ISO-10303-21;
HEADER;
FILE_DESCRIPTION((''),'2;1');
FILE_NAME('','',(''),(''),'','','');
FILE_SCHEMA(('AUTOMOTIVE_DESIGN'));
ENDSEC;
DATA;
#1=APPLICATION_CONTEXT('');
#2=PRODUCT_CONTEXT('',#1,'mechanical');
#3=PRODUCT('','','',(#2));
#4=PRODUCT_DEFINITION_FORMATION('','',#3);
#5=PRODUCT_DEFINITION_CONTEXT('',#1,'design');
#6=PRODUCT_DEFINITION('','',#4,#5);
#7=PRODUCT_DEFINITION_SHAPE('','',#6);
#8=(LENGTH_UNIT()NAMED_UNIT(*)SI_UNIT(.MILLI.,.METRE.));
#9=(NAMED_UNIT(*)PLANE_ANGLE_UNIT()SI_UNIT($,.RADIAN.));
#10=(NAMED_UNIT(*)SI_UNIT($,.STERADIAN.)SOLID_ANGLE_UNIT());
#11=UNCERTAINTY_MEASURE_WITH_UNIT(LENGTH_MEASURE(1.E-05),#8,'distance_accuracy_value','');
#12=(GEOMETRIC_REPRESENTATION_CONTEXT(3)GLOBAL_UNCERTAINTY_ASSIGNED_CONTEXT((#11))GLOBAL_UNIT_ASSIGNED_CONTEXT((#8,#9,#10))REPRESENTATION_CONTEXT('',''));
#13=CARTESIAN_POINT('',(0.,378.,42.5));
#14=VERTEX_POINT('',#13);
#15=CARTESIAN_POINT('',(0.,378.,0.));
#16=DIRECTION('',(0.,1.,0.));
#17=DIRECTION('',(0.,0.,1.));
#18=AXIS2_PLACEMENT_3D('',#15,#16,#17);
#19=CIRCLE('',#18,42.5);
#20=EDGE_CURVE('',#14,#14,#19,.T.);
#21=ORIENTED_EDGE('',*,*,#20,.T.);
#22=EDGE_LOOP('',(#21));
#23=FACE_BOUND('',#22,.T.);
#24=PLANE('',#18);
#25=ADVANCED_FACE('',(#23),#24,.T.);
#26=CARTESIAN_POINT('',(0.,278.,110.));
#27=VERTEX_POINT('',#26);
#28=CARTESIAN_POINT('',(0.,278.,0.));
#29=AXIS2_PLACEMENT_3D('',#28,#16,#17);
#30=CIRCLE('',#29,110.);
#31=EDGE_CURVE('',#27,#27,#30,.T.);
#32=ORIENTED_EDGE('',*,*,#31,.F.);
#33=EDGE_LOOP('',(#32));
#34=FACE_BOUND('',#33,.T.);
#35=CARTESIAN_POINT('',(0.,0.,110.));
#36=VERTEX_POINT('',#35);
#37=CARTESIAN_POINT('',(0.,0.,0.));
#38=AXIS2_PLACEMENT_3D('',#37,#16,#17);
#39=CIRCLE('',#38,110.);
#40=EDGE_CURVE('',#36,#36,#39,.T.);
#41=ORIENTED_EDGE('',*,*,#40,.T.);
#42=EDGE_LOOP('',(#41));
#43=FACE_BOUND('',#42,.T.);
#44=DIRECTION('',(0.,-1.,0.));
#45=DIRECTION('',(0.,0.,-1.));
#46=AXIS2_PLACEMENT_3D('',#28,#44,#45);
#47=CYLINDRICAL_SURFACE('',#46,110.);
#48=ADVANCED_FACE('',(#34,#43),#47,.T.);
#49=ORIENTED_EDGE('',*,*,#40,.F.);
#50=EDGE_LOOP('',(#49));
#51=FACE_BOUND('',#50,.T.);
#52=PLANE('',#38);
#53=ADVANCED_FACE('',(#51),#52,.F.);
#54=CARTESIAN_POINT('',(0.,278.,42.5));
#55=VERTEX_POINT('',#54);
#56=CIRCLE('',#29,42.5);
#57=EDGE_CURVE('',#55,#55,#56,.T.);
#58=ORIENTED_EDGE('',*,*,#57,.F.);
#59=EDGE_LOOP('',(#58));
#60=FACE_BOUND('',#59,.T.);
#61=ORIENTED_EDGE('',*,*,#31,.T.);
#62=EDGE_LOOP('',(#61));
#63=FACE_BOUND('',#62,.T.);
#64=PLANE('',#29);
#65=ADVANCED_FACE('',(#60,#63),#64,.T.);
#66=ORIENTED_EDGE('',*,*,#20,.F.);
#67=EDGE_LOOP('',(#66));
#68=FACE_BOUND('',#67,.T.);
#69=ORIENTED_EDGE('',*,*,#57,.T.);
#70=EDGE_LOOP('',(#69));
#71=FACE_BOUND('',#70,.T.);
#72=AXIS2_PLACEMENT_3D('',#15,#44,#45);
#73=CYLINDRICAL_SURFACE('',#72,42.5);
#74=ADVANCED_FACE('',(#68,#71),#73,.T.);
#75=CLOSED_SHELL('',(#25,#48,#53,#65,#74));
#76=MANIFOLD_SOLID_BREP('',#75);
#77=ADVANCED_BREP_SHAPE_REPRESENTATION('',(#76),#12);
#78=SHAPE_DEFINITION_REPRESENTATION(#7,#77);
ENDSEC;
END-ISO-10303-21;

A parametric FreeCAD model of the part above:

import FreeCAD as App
import Part
import Sketcher

doc = App.newDocument("Part")
params = doc.addObject("Spreadsheet::Sheet", "Params")
for row, (alias, value) in enumerate([
    ("sketch1_diameter", "220 mm"),
    ("pad1_length", "278 mm"),
    ("sketch2_diameter", "85 mm"),
    ("pad2_length", "100 mm"),
], start=1):
    params.set(f"A{row}", alias)
    params.set(f"B{row}", "=" + value)
    params.setAlias(f"B{row}", alias)

body = doc.addObject("PartDesign::Body", "Body")

# Sketch on XZ plane
sketch1 = doc.addObject("Sketcher::SketchObject", "Sketch")
body.addObject(sketch1)
sketch1.AttachmentSupport = (doc.XZ_Plane, [""])
sketch1.MapMode = "FlatFace"
sketch1.addGeometry(Part.Circle(App.Vector(0, 0, 0), App.Vector(0, 0, 1), 110), False)
sketch1.addConstraint(Sketcher.Constraint("Coincident", 0, 3, -1, 1))
sketch1.addConstraint(Sketcher.Constraint("Diameter", 0, 220.0))
sketch1.setExpression("Constraints[1]", "Params.sketch1_diameter")
pad1 = doc.addObject("PartDesign::Pad", "Pad")
body.addObject(pad1)
pad1.Profile = sketch1
pad1.setExpression("Length", "Params.pad1_length")
pad1.Reversed = True

# Sketch on XZ plane
sketch2 = doc.addObject("Sketcher::SketchObject", "Sketch001")
body.addObject(sketch2)
sketch2.AttachmentSupport = (doc.XZ_Plane, [""])
sketch2.MapMode = "FlatFace"
sketch2.AttachmentOffset = App.Placement(App.Vector(0, 0, -278), App.Rotation())
sketch2.addGeometry(Part.Circle(App.Vector(0, 0, 0), App.Vector(0, 0, 1), 42), False)
sketch2.addConstraint(Sketcher.Constraint("Coincident", 0, 3, -1, 1))
sketch2.addConstraint(Sketcher.Constraint("Diameter", 0, 85.0))
sketch2.setExpression("Constraints[1]", "Params.sketch2_diameter")
pad2 = doc.addObject("PartDesign::Pad", "Pad001")
body.addObject(pad2)
pad2.Profile = sketch2
pad2.setExpression("Length", "Params.pad2_length")
pad2.Reversed = True

doc.recompute()
